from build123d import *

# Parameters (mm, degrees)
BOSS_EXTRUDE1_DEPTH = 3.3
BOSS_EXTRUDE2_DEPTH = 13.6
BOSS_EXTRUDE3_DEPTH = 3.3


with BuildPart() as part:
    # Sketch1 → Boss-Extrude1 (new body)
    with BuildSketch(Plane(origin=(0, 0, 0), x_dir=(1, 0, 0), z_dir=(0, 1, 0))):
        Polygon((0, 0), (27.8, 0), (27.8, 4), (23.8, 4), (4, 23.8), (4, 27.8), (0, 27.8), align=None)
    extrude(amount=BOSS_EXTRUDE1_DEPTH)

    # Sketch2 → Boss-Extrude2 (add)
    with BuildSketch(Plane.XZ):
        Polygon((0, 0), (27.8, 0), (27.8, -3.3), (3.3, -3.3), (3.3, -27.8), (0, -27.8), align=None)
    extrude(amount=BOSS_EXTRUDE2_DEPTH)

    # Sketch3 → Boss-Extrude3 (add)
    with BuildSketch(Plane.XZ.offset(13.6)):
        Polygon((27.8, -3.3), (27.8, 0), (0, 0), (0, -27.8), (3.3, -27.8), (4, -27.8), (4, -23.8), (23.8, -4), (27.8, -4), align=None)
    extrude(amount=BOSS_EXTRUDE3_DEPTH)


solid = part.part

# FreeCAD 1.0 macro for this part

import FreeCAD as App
import Part
import Sketcher

V = App.Vector


def add_polygon(sketch, points):
    """Adds a closed chain of lines whose ends are joined by coincident constraints."""
    first, n = sketch.GeometryCount, len(points)
    for a, b in zip(points, points[1:] + points[:1]):
        sketch.addGeometry(Part.LineSegment(App.Vector(*a, 0), App.Vector(*b, 0)), False)
    for i in range(n):
        sketch.addConstraint(Sketcher.Constraint("Coincident", first + i, 2, first + (i + 1) % n, 1))

doc = App.newDocument("Part")
params = doc.addObject("Spreadsheet::Sheet", "Params")
for row, (alias, value) in enumerate([
    ("sketch1_width", "4 mm"),
    ("sketch1_width2", "27.8 mm"),
    ("pad1_length", "3.3 mm"),
    ("sketch2_width", "27.8 mm"),
    ("sketch2_width2", "3.3 mm"),
    ("pad2_length", "13.6 mm"),
    ("sketch3_width", "4 mm"),
    ("sketch3_width2", "27.8 mm"),
    ("pad3_length", "3.3 mm"),
], start=1):
    params.set(f"A{row}", alias)
    params.set(f"B{row}", "=" + value)
    params.setAlias(f"B{row}", alias)

body = doc.addObject("PartDesign::Body", "Body")

sketch1 = body.newObject("Sketcher::SketchObject", "Sketch")
sketch1.AttachmentSupport = (doc.getObject("XZ_Plane"), [""])
sketch1.MapMode = "FlatFace"
add_polygon(sketch1, [(0, 0), (27.8, 0), (27.8, -4), (23.8, -4), (4, -23.8), (4, -27.8), (0, -27.8)])
sketch1.addConstraint(Sketcher.Constraint("Horizontal", 0))
sketch1.addConstraint(Sketcher.Constraint("Vertical", 1))
sketch1.addConstraint(Sketcher.Constraint("Horizontal", 2))
sketch1.addConstraint(Sketcher.Constraint("Vertical", 4))
sketch1.addConstraint(Sketcher.Constraint("Horizontal", 5))
sketch1.addConstraint(Sketcher.Constraint("Vertical", 6))
sketch1.addConstraint(Sketcher.Constraint("Coincident", 6, 2, -1, 1))
sketch1.addConstraint(Sketcher.Constraint("Equal", 2, 5))
sketch1.addConstraint(Sketcher.Constraint("Equal", 5, 1))
sketch1.addConstraint(Sketcher.Constraint("Equal", 1, 4))
sketch1.addConstraint(Sketcher.Constraint("Equal", 0, 6))
sketch1.addConstraint(Sketcher.Constraint("DistanceX", 2, 2, 2, 1, 4.0))
sketch1.addConstraint(Sketcher.Constraint("DistanceX", 0, 1, 0, 2, 27.8))
sketch1.setExpression("Constraints[18]", "Params.sketch1_width")
sketch1.setExpression("Constraints[19]", "Params.sketch1_width2")
pad1 = body.newObject("PartDesign::Pad", "Pad")
pad1.Profile = sketch1
pad1.setExpression("Length", "Params.pad1_length")
pad1.Reversed = True

sketch2 = body.newObject("Sketcher::SketchObject", "Sketch001")
sketch2.AttachmentSupport = (doc.getObject("XZ_Plane"), [""])
sketch2.MapMode = "FlatFace"
add_polygon(sketch2, [(27.8, 0), (0, 0), (0, -27.8), (3.3, -27.8), (3.3, -3.3), (27.8, -3.3)])
sketch2.addConstraint(Sketcher.Constraint("Horizontal", 0))
sketch2.addConstraint(Sketcher.Constraint("Vertical", 1))
sketch2.addConstraint(Sketcher.Constraint("Horizontal", 2))
sketch2.addConstraint(Sketcher.Constraint("Vertical", 3))
sketch2.addConstraint(Sketcher.Constraint("Horizontal", 4))
sketch2.addConstraint(Sketcher.Constraint("Vertical", 5))
sketch2.addConstraint(Sketcher.Constraint("Coincident", 0, 2, -1, 1))
sketch2.addConstraint(Sketcher.Constraint("Equal", 0, 1))
sketch2.addConstraint(Sketcher.Constraint("Equal", 4, 3))
sketch2.addConstraint(Sketcher.Constraint("DistanceX", 0, 2, 0, 1, 27.8))
sketch2.addConstraint(Sketcher.Constraint("DistanceX", 2, 1, 2, 2, 3.3))
sketch2.setExpression("Constraints[15]", "Params.sketch2_width")
sketch2.setExpression("Constraints[16]", "Params.sketch2_width2")
pad2 = body.newObject("PartDesign::Pad", "Pad001")
pad2.Profile = sketch2
pad2.setExpression("Length", "Params.pad2_length")

sketch3 = body.newObject("Sketcher::SketchObject", "Sketch002")
sketch3.AttachmentSupport = (doc.getObject("XZ_Plane"), [""])
sketch3.MapMode = "FlatFace"
sketch3.AttachmentOffset = App.Placement(V(0, 0, 13.6), App.Rotation())
add_polygon(sketch3, [(27.8, 0), (0, 0), (0, -27.8), (4, -27.8), (4, -23.8), (23.8, -4), (27.8, -4)])
sketch3.addConstraint(Sketcher.Constraint("Horizontal", 0))
sketch3.addConstraint(Sketcher.Constraint("Vertical", 1))
sketch3.addConstraint(Sketcher.Constraint("Horizontal", 2))
sketch3.addConstraint(Sketcher.Constraint("Vertical", 3))
sketch3.addConstraint(Sketcher.Constraint("Horizontal", 5))
sketch3.addConstraint(Sketcher.Constraint("Vertical", 6))
sketch3.addConstraint(Sketcher.Constraint("Coincident", 0, 2, -1, 1))
sketch3.addConstraint(Sketcher.Constraint("Equal", 2, 5))
sketch3.addConstraint(Sketcher.Constraint("Equal", 0, 1))
sketch3.addConstraint(Sketcher.Constraint("Equal", 5, 3))
sketch3.addConstraint(Sketcher.Constraint("Equal", 3, 6))
sketch3.addConstraint(Sketcher.Constraint("DistanceX", 2, 1, 2, 2, 4.0))
sketch3.addConstraint(Sketcher.Constraint("DistanceX", 0, 2, 0, 1, 27.8))
sketch3.setExpression("Constraints[18]", "Params.sketch3_width")
sketch3.setExpression("Constraints[19]", "Params.sketch3_width2")
pad3 = body.newObject("PartDesign::Pad", "Pad002")
pad3.Profile = sketch3
pad3.setExpression("Length", "Params.pad3_length")

doc.recompute()
